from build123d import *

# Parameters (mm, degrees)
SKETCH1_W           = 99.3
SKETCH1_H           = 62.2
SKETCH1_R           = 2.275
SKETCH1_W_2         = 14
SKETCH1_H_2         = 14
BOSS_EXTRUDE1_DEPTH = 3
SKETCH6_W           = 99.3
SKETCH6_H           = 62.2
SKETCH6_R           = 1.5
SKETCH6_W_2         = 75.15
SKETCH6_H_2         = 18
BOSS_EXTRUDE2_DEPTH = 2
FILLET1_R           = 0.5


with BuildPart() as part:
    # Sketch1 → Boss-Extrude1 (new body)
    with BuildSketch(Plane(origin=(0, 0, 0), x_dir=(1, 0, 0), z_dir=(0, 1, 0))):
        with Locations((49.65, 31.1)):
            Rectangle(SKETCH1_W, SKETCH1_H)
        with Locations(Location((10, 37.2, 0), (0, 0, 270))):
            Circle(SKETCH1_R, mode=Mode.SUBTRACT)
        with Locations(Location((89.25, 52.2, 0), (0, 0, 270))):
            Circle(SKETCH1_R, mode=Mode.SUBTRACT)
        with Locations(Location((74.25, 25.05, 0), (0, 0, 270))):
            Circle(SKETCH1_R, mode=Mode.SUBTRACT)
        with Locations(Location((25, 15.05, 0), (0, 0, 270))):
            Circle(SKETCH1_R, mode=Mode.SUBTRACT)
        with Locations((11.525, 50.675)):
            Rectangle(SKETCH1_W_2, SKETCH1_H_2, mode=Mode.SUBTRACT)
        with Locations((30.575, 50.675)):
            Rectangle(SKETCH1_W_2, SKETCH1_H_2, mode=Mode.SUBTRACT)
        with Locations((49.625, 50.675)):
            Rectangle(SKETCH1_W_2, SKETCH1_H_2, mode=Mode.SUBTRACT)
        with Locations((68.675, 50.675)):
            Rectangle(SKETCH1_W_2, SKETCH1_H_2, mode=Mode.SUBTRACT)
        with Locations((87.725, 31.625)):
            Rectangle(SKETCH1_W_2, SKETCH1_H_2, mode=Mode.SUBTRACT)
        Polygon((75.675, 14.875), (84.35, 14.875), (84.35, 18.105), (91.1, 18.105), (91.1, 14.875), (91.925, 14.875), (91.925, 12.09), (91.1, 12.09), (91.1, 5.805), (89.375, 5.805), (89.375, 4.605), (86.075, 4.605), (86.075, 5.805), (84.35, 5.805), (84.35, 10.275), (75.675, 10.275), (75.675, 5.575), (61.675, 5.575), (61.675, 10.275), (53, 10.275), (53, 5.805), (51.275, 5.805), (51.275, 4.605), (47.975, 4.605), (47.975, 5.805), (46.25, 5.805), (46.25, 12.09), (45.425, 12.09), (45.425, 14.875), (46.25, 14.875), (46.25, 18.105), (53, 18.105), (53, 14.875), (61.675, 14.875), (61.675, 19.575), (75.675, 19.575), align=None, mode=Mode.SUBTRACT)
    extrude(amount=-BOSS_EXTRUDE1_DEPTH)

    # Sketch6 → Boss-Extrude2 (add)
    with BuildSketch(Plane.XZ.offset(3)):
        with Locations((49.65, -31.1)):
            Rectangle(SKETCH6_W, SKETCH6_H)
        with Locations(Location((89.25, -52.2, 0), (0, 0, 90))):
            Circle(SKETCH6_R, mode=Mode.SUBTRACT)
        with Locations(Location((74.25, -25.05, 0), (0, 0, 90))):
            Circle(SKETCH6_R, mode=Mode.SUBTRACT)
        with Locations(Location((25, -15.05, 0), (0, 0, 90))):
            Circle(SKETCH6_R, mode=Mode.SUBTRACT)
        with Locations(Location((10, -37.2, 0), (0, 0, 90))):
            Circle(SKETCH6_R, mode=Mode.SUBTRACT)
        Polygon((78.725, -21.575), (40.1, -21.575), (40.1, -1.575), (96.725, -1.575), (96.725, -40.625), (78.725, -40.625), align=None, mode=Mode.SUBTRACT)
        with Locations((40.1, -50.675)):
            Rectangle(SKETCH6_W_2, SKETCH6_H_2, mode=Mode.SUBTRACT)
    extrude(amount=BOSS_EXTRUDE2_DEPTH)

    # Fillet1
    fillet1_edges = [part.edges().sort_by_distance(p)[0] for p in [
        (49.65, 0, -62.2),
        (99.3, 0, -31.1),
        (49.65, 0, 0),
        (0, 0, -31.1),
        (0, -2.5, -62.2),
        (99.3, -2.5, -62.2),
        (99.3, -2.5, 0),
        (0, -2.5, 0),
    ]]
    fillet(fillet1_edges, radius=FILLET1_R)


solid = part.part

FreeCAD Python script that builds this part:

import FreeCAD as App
import Part
import Sketcher
from FreeCAD import Vector
Q = App.Units.Quantity


def edges_at(feature, points):
    """Names of the edges that pass closest to the given points."""
    edges = feature.Shape.Edges
    near = lambda p: min(range(len(edges)), key=lambda i: edges[i].distToShape(Part.Vertex(*p))[0])
    return sorted({f"Edge{near(p) + 1}" for p in points})


def add_polygon(sketch, points):
    """Adds a closed chain of lines whose ends are joined by coincident constraints."""
    first, n = sketch.GeometryCount, len(points)
    for a, b in zip(points, points[1:] + points[:1]):
        sketch.addGeometry(Part.LineSegment(App.Vector(*a, 0), App.Vector(*b, 0)), False)
    for i in range(n):
        sketch.addConstraint(Sketcher.Constraint("Coincident", first + i, 2, first + (i + 1) % n, 1))

doc = App.newDocument("Part")
params = doc.addObject("Spreadsheet::Sheet", "Params")
for row, (alias, value) in enumerate([
    ("sketch1_diameter", "4.55 mm"),
    ("sketch1_width", "14 mm"),
    ("sketch1_width2", "99.3 mm"),
    ("sketch1_width3", "3.3 mm"),
    ("sketch1_height", "62.2 mm"),
    ("pad1_length", "3 mm"),
    ("sketch2_diameter", "3 mm"),
    ("sketch2_width", "18 mm"),
    ("sketch2_height", "20 mm"),
    ("sketch2_width2", "99.3 mm"),
    ("sketch2_height2", "62.2 mm"),
    ("pad2_length", "2 mm"),
    ("fillet_radius", "0.5 mm"),
], start=1):
    params.set(f"A{row}", alias)
    params.set(f"B{row}", "=" + value)
    params.setAlias(f"B{row}", alias)

body = doc.addObject("PartDesign::Body", "Body")

sketch1 = body.newObject("Sketcher::SketchObject", "Sketch")
sketch1.AttachmentSupport = (doc.getObject("XZ_Plane"), [""])
sketch1.MapMode = "FlatFace"
add_polygon(sketch1, [(0, -62.2), (0, 0), (99.3, 0), (99.3, -62.2)])
sketch1.addGeometry(Part.Circle(Vector(25, -15.1, 0), Vector(0, 0, 1), 2.3), False)
add_polygon(sketch1, [(75.7, -19.6), (75.7, -14.9), (84.3, -14.9), (84.3, -18.1), (91.1, -18.1), (91.1, -14.9), (91.9, -14.9), (91.9, -12.1), (91.1, -12.1), (91.1, -5.8), (89.4, -5.8), (89.4, -4.6), (86.1, -4.6), (86.1, -5.8), (84.3, -5.8), (84.3, -10.3), (75.7, -10.3), (75.7, -5.6), (61.7, -5.6), (61.7, -10.3), (53, -10.3), (53, -5.8), (51.3, -5.8), (51.3, -4.6), (48, -4.6), (48, -5.8), (46.2, -5.8), (46.2, -12.1), (45.4, -12.1), (45.4, -14.9), (46.2, -14.9), (46.2, -18.1), (53, -18.1), (53, -14.9), (61.7, -14.9), (61.7, -19.6)])
sketch1.addGeometry(Part.Circle(Vector(74.2, -25.1, 0), Vector(0, 0, 1), 2.3), False)
sketch1.addGeometry(Part.Circle(Vector(10, -37.2, 0), Vector(0, 0, 1), 2.3), False)
add_polygon(sketch1, [(18.5, -43.7), (4.5, -43.7), (4.5, -57.7), (18.5, -57.7)])
add_polygon(sketch1, [(37.6, -43.7), (23.6, -43.7), (23.6, -57.7), (37.6, -57.7)])
add_polygon(sketch1, [(94.7, -24.6), (80.7, -24.6), (80.7, -38.6), (94.7, -38.6)])
add_polygon(sketch1, [(56.6, -43.7), (42.6, -43.7), (42.6, -57.7), (56.6, -57.7)])
add_polygon(sketch1, [(75.7, -43.7), (61.7, -43.7), (61.7, -57.7), (75.7, -57.7)])
sketch1.addGeometry(Part.Circle(Vector(89.2, -52.2, 0), Vector(0, 0, 1), 2.3), False)
sketch1.addConstraint([
    Sketcher.Constraint("Vertical", 0),
    Sketcher.Constraint("Horizontal", 1),
    Sketcher.Constraint("Vertical", 2),
    Sketcher.Constraint("Horizontal", 3),
    Sketcher.Constraint("Vertical", 5),
    Sketcher.Constraint("Horizontal", 6),
    Sketcher.Constraint("Vertical", 7),
    Sketcher.Constraint("Horizontal", 8),
    Sketcher.Constraint("Vertical", 9),
    Sketcher.Constraint("Horizontal", 10),
    Sketcher.Constraint("Vertical", 11),
    Sketcher.Constraint("Horizontal", 12),
    Sketcher.Constraint("Vertical", 13),
    Sketcher.Constraint("Horizontal", 14),
    Sketcher.Constraint("Vertical", 15),
    Sketcher.Constraint("Horizontal", 16),
    Sketcher.Constraint("Vertical", 17),
    Sketcher.Constraint("Horizontal", 18),
    Sketcher.Constraint("Vertical", 19),
    Sketcher.Constraint("Horizontal", 20),
    Sketcher.Constraint("Vertical", 21),
    Sketcher.Constraint("Horizontal", 22),
    Sketcher.Constraint("Vertical", 23),
    Sketcher.Constraint("Horizontal", 24),
    Sketcher.Constraint("Vertical", 25),
    Sketcher.Constraint("Horizontal", 26),
    Sketcher.Constraint("Vertical", 27),
    Sketcher.Constraint("Horizontal", 28),
    Sketcher.Constraint("Vertical", 29),
    Sketcher.Constraint("Horizontal", 30),
    Sketcher.Constraint("Vertical", 31),
    Sketcher.Constraint("Horizontal", 32),
    Sketcher.Constraint("Vertical", 33),
    Sketcher.Constraint("Horizontal", 34),
    Sketcher.Constraint("Vertical", 35),
    Sketcher.Constraint("Horizontal", 36),
    Sketcher.Constraint("Vertical", 37),
    Sketcher.Constraint("Horizontal", 38),
    Sketcher.Constraint("Vertical", 39),
    Sketcher.Constraint("Horizontal", 40),
    Sketcher.Constraint("Horizontal", 43),
    Sketcher.Constraint("Vertical", 44),
    Sketcher.Constraint("Horizontal", 45),
    Sketcher.Constraint("Vertical", 46),
    Sketcher.Constraint("Horizontal", 47),
    Sketcher.Constraint("Vertical", 48),
    Sketcher.Constraint("Horizontal", 49),
    Sketcher.Constraint("Vertical", 50),
    Sketcher.Constraint("Horizontal", 51),
    Sketcher.Constraint("Vertical", 52),
    Sketcher.Constraint("Horizontal", 53),
    Sketcher.Constraint("Vertical", 54),
    Sketcher.Constraint("Horizontal", 55),
    Sketcher.Constraint("Vertical", 56),
    Sketcher.Constraint("Horizontal", 57),
    Sketcher.Constraint("Vertical", 58),
    Sketcher.Constraint("Horizontal", 59),
    Sketcher.Constraint("Vertical", 60),
    Sketcher.Constraint("Horizontal", 61),
    Sketcher.Constraint("Vertical", 62),
    Sketcher.Constraint("Coincident", 0, 2, -1, 1),
    Sketcher.Constraint("Equal", 4, 41),
    Sketcher.Constraint("Equal", 41, 42),
    Sketcher.Constraint("Equal", 42, 63),
    Sketcher.Constraint("Horizontal", 6, 2, 9, 2),
    Sketcher.Constraint("Horizontal", 14, 2, 17, 2),
    Sketcher.Constraint("Horizontal", 20, 2, 23, 2),
    Sketcher.Constraint("Horizontal", 18, 2, 25, 2),
    Sketcher.Constraint("Horizontal", 16, 2, 27, 2),
    Sketcher.Constraint("Horizontal", 26, 2, 29, 2),
    Sketcher.Constraint("Horizontal", 12, 2, 31, 2),
    Sketcher.Constraint("Horizontal", 10, 2, 33, 2),
    Sketcher.Constraint("Horizontal", 8, 2, 35, 2),
    Sketcher.Constraint("Horizontal", 34, 2, 37, 2),
    Sketcher.Constraint("Horizontal", 46, 2, 47, 2),
    Sketcher.Constraint("Horizontal", 45, 2, 48, 2),
    Sketcher.Constraint("Horizontal", 50, 2, 55, 2),
    Sketcher.Constraint("Horizontal", 49, 2, 56, 2),
    Sketcher.Constraint("Horizontal", 58, 2, 59, 2),
    Sketcher.Constraint("Horizontal", 57, 2, 60, 2),
    Sketcher.Constraint("Vertical", 9, 2, 12, 2),
    Sketcher.Constraint("Vertical", 7, 2, 18, 2),
    Sketcher.Constraint("Vertical", 5, 2, 20, 2),
    Sketcher.Constraint("Vertical", 31, 2, 34, 2),
    Sketcher.Constraint("Vertical", 25, 2, 36, 2),
    Sketcher.Constraint("Vertical", 23, 2, 38, 2),
    Sketcher.Constraint("Vertical", 39, 2, 59, 2),
    Sketcher.Constraint("Vertical", 40, 2, 61, 2),
    Sketcher.Constraint("Equal", 14, 18),
    Sketcher.Constraint("Equal", 20, 24),
    Sketcher.Constraint("Equal", 18, 26),
    Sketcher.Constraint("Equal", 16, 28),
    Sketcher.Constraint("Equal", 26, 30),
    Sketcher.Constraint("Equal", 12, 32),
    Sketcher.Constraint("Equal", 40, 43),
    Sketcher.Constraint("Equal", 45, 47),
    Sketcher.Constraint("Equal", 49, 51),
    Sketcher.Constraint("Equal", 53, 55),
    Sketcher.Constraint("Equal", 5, 21),
    Sketcher.Constraint("Equal", 61, 44),
    Sketcher.Constraint("Equal", 50, 52),
    Sketcher.Constraint("Diameter", 4, Q("4.55 mm")),
    Sketcher.Constraint("DistanceX", 22, 2, 22, 1, Q("14 mm")),
    Sketcher.Constraint("DistanceX", 1, 1, 1, 2, Q("99.3 mm")),
    Sketcher.Constraint("DistanceX", 16, 2, 16, 1, Q("3.3 mm")),
    Sketcher.Constraint("DistanceY", 0, 1, 0, 2, Q("62.2 mm")),
    Sketcher.Constraint("DistanceY", 5, 1, 5, 2, Q("4.7 mm")),
    Sketcher.Constraint("DistanceY", 15, 1, 15, 2, Q("1.2 mm")),
    Sketcher.Constraint("DistanceX", -1, 1, 4, 3, Q("25 mm")),
    Sketcher.Constraint("DistanceX", -1, 1, 42, 3, Q("10 mm")),
    Sketcher.Constraint("DistanceX", -1, 1, 24, 2, Q("53 mm")),
    Sketcher.Constraint("DistanceX", 8, 1, 8, 2, Q("6.75 mm")),
    Sketcher.Constraint("DistanceY", 7, 2, 7, 1, Q("3.23 mm")),
    Sketcher.Constraint("DistanceY", 19, 2, 19, 1, Q("4.47 mm")),
    Sketcher.Constraint("DistanceY", 42, 3, -1, 1, Q("37.2 mm")),
    Sketcher.Constraint("DistanceY", 63, 3, -1, 1, Q("52.2 mm")),
    Sketcher.Constraint("DistanceX", -1, 1, 8, 2, Q("91.1 mm")),
    Sketcher.Constraint("DistanceX", 10, 1, 10, 2, Q("0.825 mm")),
    Sketcher.Constraint("DistanceY", 11, 1, 11, 2, Q("2.785 mm")),
    Sketcher.Constraint("DistanceY", 13, 1, 13, 2, Q("6.285 mm")),
    Sketcher.Constraint("DistanceY", 4, 3, -1, 1, Q("15.05 mm")),
    Sketcher.Constraint("DistanceX", -1, 1, 41, 3, Q("74.25 mm")),
    Sketcher.Constraint("DistanceY", 41, 3, -1, 1, Q("25.05 mm")),
    Sketcher.Constraint("DistanceX", -1, 1, 63, 3, Q("89.25 mm")),
    Sketcher.Constraint("DistanceY", 11, 2, -1, 1, Q("12.09 mm")),
    Sketcher.Constraint("DistanceX", -1, 1, 43, 2, Q("4.525 mm")),
    Sketcher.Constraint("DistanceY", 43, 2, -1, 1, Q("43.675 mm")),
    Sketcher.Constraint("DistanceX", -1, 1, 47, 2, Q("23.575 mm")),
    Sketcher.Constraint("DistanceX", -1, 1, 51, 2, Q("80.725 mm")),
    Sketcher.Constraint("DistanceY", 51, 2, -1, 1, Q("24.625 mm")),
    Sketcher.Constraint("DistanceX", -1, 1, 55, 2, Q("42.625 mm")),
])
sketch1.setExpression("Constraints[161]", "Params.sketch1_diameter")
sketch1.setExpression("Constraints[162]", "Params.sketch1_width")
sketch1.setExpression("Constraints[163]", "Params.sketch1_width2")
sketch1.setExpression("Constraints[164]", "Params.sketch1_width3")
sketch1.setExpression("Constraints[165]", "Params.sketch1_height")
pad1 = body.newObject("PartDesign::Pad", "Pad")
pad1.Profile = sketch1
pad1.setExpression("Length", "Params.pad1_length")

sketch2 = body.newObject("Sketcher::SketchObject", "Sketch001")
sketch2.AttachmentSupport = (doc.getObject("XZ_Plane"), [""])
sketch2.MapMode = "FlatFace"
sketch2.AttachmentOffset = App.Placement(Vector(0, 0, 3), App.Rotation())
add_polygon(sketch2, [(0, 0), (0, -62.2), (99.3, -62.2), (99.3, 0)])
add_polygon(sketch2, [(77.7, -59.7), (2.5, -59.7), (2.5, -41.7), (77.7, -41.7)])
sketch2.addGeometry(Part.Circle(Vector(10, -37.2, 0), Vector(0, 0, 1), 1.5), False)
sketch2.addGeometry(Part.Circle(Vector(89.2, -52.2, 0), Vector(0, 0, 1), 1.5), False)
sketch2.addGeometry(Part.Circle(Vector(25, -15.1, 0), Vector(0, 0, 1), 1.5), False)
add_polygon(sketch2, [(78.7, -40.6), (78.7, -21.6), (40.1, -21.6), (40.1, -1.6), (96.7, -1.6), (96.7, -40.6)])
sketch2.addGeometry(Part.Circle(Vector(74.2, -25.1, 0), Vector(0, 0, 1), 1.5), False)
sketch2.addConstraint([
    Sketcher.Constraint("Vertical", 0),
    Sketcher.Constraint("Horizontal", 1),
    Sketcher.Constraint("Vertical", 2),
    Sketcher.Constraint("Horizontal", 3),
    Sketcher.Constraint("Horizontal", 4),
    Sketcher.Constraint("Vertical", 5),
    Sketcher.Constraint("Horizontal", 6),
    Sketcher.Constraint("Vertical", 7),
    Sketcher.Constraint("Vertical", 11),
    Sketcher.Constraint("Horizontal", 12),
    Sketcher.Constraint("Vertical", 13),
    Sketcher.Constraint("Horizontal", 14),
    Sketcher.Constraint("Vertical", 15),
    Sketcher.Constraint("Horizontal", 16),
    Sketcher.Constraint("Coincident", 3, 2, -1, 1),
    Sketcher.Constraint("Equal", 8, 9),
    Sketcher.Constraint("Equal", 9, 10),
    Sketcher.Constraint("Equal", 10, 17),
    Sketcher.Constraint("Equal", 16, 5),
    Sketcher.Constraint("Diameter", 8, Q("3 mm")),
    Sketcher.Constraint("DistanceX", 16, 2, 16, 1, Q("18 mm")),
    Sketcher.Constraint("DistanceY", 13, 1, 13, 2, Q("20 mm")),
    Sketcher.Constraint("DistanceX", 1, 1, 1, 2, Q("99.3 mm")),
    Sketcher.Constraint("DistanceY", 0, 2, 0, 1, Q("62.2 mm")),
    Sketcher.Constraint("DistanceX", -1, 1, 8, 3, Q("10 mm")),
    Sketcher.Constraint("DistanceX", -1, 1, 10, 3, Q("25 mm")),
    Sketcher.Constraint("DistanceY", 9, 3, 8, 3, Q("15 mm")),
    Sketcher.Constraint("DistanceX", 17, 3, 9, 3, Q("15 mm")),
    Sketcher.Constraint("DistanceY", 17, 3, 10, 3, Q("10 mm")),
    Sketcher.Constraint("DistanceY", 0, 2, 8, 3, Q("25 mm")),
    Sketcher.Constraint("DistanceX", 4, 2, 4, 1, Q("75.15 mm")),
    Sketcher.Constraint("DistanceY", 11, 1, 11, 2, Q("19.05 mm")),
    Sketcher.Constraint("DistanceX", -1, 1, 12, 2, Q("40.1 mm")),
    Sketcher.Constraint("DistanceY", 6, 2, 11, 2, Q("20.1 mm")),
    Sketcher.Constraint("DistanceX", 12, 2, 12, 1, Q("38.625 mm")),
    Sketcher.Constraint("DistanceX", -1, 1, 9, 3, Q("89.25 mm")),
    Sketcher.Constraint("DistanceY", 10, 3, -1, 1, Q("15.05 mm")),
    Sketcher.Constraint("DistanceX", 6, 2, 11, 2, Q("1.05 mm")),
    Sketcher.Constraint("DistanceY", 4, 2, -1, 1, Q("59.675 mm")),
])
sketch2.setExpression("Constraints[33]", "Params.sketch2_diameter")
sketch2.setExpression("Constraints[34]", "Params.sketch2_width")
sketch2.setExpression("Constraints[35]", "Params.sketch2_height")
sketch2.setExpression("Constraints[36]", "Params.sketch2_width2")
sketch2.setExpression("Constraints[37]", "Params.sketch2_height2")
pad2 = body.newObject("PartDesign::Pad", "Pad001")
pad2.Profile = sketch2
pad2.setExpression("Length", "Params.pad2_length")
doc.recompute()

fillet = body.newObject("PartDesign::Fillet", "Fillet")
fillet.Base = (pad2, edges_at(pad2, [
    (49.65, 0, -62.2),
    (99.3, 0, -31.1),
    (49.65, 0, 0),
    (0, 0, -31.1),
    (0, -2.5, -62.2),
    (99.3, -2.5, -62.2),
    (99.3, -2.5, 0),
    (0, -2.5, 0),
]))
fillet.setExpression("Radius", "Params.fillet_radius")

doc.recompute()
